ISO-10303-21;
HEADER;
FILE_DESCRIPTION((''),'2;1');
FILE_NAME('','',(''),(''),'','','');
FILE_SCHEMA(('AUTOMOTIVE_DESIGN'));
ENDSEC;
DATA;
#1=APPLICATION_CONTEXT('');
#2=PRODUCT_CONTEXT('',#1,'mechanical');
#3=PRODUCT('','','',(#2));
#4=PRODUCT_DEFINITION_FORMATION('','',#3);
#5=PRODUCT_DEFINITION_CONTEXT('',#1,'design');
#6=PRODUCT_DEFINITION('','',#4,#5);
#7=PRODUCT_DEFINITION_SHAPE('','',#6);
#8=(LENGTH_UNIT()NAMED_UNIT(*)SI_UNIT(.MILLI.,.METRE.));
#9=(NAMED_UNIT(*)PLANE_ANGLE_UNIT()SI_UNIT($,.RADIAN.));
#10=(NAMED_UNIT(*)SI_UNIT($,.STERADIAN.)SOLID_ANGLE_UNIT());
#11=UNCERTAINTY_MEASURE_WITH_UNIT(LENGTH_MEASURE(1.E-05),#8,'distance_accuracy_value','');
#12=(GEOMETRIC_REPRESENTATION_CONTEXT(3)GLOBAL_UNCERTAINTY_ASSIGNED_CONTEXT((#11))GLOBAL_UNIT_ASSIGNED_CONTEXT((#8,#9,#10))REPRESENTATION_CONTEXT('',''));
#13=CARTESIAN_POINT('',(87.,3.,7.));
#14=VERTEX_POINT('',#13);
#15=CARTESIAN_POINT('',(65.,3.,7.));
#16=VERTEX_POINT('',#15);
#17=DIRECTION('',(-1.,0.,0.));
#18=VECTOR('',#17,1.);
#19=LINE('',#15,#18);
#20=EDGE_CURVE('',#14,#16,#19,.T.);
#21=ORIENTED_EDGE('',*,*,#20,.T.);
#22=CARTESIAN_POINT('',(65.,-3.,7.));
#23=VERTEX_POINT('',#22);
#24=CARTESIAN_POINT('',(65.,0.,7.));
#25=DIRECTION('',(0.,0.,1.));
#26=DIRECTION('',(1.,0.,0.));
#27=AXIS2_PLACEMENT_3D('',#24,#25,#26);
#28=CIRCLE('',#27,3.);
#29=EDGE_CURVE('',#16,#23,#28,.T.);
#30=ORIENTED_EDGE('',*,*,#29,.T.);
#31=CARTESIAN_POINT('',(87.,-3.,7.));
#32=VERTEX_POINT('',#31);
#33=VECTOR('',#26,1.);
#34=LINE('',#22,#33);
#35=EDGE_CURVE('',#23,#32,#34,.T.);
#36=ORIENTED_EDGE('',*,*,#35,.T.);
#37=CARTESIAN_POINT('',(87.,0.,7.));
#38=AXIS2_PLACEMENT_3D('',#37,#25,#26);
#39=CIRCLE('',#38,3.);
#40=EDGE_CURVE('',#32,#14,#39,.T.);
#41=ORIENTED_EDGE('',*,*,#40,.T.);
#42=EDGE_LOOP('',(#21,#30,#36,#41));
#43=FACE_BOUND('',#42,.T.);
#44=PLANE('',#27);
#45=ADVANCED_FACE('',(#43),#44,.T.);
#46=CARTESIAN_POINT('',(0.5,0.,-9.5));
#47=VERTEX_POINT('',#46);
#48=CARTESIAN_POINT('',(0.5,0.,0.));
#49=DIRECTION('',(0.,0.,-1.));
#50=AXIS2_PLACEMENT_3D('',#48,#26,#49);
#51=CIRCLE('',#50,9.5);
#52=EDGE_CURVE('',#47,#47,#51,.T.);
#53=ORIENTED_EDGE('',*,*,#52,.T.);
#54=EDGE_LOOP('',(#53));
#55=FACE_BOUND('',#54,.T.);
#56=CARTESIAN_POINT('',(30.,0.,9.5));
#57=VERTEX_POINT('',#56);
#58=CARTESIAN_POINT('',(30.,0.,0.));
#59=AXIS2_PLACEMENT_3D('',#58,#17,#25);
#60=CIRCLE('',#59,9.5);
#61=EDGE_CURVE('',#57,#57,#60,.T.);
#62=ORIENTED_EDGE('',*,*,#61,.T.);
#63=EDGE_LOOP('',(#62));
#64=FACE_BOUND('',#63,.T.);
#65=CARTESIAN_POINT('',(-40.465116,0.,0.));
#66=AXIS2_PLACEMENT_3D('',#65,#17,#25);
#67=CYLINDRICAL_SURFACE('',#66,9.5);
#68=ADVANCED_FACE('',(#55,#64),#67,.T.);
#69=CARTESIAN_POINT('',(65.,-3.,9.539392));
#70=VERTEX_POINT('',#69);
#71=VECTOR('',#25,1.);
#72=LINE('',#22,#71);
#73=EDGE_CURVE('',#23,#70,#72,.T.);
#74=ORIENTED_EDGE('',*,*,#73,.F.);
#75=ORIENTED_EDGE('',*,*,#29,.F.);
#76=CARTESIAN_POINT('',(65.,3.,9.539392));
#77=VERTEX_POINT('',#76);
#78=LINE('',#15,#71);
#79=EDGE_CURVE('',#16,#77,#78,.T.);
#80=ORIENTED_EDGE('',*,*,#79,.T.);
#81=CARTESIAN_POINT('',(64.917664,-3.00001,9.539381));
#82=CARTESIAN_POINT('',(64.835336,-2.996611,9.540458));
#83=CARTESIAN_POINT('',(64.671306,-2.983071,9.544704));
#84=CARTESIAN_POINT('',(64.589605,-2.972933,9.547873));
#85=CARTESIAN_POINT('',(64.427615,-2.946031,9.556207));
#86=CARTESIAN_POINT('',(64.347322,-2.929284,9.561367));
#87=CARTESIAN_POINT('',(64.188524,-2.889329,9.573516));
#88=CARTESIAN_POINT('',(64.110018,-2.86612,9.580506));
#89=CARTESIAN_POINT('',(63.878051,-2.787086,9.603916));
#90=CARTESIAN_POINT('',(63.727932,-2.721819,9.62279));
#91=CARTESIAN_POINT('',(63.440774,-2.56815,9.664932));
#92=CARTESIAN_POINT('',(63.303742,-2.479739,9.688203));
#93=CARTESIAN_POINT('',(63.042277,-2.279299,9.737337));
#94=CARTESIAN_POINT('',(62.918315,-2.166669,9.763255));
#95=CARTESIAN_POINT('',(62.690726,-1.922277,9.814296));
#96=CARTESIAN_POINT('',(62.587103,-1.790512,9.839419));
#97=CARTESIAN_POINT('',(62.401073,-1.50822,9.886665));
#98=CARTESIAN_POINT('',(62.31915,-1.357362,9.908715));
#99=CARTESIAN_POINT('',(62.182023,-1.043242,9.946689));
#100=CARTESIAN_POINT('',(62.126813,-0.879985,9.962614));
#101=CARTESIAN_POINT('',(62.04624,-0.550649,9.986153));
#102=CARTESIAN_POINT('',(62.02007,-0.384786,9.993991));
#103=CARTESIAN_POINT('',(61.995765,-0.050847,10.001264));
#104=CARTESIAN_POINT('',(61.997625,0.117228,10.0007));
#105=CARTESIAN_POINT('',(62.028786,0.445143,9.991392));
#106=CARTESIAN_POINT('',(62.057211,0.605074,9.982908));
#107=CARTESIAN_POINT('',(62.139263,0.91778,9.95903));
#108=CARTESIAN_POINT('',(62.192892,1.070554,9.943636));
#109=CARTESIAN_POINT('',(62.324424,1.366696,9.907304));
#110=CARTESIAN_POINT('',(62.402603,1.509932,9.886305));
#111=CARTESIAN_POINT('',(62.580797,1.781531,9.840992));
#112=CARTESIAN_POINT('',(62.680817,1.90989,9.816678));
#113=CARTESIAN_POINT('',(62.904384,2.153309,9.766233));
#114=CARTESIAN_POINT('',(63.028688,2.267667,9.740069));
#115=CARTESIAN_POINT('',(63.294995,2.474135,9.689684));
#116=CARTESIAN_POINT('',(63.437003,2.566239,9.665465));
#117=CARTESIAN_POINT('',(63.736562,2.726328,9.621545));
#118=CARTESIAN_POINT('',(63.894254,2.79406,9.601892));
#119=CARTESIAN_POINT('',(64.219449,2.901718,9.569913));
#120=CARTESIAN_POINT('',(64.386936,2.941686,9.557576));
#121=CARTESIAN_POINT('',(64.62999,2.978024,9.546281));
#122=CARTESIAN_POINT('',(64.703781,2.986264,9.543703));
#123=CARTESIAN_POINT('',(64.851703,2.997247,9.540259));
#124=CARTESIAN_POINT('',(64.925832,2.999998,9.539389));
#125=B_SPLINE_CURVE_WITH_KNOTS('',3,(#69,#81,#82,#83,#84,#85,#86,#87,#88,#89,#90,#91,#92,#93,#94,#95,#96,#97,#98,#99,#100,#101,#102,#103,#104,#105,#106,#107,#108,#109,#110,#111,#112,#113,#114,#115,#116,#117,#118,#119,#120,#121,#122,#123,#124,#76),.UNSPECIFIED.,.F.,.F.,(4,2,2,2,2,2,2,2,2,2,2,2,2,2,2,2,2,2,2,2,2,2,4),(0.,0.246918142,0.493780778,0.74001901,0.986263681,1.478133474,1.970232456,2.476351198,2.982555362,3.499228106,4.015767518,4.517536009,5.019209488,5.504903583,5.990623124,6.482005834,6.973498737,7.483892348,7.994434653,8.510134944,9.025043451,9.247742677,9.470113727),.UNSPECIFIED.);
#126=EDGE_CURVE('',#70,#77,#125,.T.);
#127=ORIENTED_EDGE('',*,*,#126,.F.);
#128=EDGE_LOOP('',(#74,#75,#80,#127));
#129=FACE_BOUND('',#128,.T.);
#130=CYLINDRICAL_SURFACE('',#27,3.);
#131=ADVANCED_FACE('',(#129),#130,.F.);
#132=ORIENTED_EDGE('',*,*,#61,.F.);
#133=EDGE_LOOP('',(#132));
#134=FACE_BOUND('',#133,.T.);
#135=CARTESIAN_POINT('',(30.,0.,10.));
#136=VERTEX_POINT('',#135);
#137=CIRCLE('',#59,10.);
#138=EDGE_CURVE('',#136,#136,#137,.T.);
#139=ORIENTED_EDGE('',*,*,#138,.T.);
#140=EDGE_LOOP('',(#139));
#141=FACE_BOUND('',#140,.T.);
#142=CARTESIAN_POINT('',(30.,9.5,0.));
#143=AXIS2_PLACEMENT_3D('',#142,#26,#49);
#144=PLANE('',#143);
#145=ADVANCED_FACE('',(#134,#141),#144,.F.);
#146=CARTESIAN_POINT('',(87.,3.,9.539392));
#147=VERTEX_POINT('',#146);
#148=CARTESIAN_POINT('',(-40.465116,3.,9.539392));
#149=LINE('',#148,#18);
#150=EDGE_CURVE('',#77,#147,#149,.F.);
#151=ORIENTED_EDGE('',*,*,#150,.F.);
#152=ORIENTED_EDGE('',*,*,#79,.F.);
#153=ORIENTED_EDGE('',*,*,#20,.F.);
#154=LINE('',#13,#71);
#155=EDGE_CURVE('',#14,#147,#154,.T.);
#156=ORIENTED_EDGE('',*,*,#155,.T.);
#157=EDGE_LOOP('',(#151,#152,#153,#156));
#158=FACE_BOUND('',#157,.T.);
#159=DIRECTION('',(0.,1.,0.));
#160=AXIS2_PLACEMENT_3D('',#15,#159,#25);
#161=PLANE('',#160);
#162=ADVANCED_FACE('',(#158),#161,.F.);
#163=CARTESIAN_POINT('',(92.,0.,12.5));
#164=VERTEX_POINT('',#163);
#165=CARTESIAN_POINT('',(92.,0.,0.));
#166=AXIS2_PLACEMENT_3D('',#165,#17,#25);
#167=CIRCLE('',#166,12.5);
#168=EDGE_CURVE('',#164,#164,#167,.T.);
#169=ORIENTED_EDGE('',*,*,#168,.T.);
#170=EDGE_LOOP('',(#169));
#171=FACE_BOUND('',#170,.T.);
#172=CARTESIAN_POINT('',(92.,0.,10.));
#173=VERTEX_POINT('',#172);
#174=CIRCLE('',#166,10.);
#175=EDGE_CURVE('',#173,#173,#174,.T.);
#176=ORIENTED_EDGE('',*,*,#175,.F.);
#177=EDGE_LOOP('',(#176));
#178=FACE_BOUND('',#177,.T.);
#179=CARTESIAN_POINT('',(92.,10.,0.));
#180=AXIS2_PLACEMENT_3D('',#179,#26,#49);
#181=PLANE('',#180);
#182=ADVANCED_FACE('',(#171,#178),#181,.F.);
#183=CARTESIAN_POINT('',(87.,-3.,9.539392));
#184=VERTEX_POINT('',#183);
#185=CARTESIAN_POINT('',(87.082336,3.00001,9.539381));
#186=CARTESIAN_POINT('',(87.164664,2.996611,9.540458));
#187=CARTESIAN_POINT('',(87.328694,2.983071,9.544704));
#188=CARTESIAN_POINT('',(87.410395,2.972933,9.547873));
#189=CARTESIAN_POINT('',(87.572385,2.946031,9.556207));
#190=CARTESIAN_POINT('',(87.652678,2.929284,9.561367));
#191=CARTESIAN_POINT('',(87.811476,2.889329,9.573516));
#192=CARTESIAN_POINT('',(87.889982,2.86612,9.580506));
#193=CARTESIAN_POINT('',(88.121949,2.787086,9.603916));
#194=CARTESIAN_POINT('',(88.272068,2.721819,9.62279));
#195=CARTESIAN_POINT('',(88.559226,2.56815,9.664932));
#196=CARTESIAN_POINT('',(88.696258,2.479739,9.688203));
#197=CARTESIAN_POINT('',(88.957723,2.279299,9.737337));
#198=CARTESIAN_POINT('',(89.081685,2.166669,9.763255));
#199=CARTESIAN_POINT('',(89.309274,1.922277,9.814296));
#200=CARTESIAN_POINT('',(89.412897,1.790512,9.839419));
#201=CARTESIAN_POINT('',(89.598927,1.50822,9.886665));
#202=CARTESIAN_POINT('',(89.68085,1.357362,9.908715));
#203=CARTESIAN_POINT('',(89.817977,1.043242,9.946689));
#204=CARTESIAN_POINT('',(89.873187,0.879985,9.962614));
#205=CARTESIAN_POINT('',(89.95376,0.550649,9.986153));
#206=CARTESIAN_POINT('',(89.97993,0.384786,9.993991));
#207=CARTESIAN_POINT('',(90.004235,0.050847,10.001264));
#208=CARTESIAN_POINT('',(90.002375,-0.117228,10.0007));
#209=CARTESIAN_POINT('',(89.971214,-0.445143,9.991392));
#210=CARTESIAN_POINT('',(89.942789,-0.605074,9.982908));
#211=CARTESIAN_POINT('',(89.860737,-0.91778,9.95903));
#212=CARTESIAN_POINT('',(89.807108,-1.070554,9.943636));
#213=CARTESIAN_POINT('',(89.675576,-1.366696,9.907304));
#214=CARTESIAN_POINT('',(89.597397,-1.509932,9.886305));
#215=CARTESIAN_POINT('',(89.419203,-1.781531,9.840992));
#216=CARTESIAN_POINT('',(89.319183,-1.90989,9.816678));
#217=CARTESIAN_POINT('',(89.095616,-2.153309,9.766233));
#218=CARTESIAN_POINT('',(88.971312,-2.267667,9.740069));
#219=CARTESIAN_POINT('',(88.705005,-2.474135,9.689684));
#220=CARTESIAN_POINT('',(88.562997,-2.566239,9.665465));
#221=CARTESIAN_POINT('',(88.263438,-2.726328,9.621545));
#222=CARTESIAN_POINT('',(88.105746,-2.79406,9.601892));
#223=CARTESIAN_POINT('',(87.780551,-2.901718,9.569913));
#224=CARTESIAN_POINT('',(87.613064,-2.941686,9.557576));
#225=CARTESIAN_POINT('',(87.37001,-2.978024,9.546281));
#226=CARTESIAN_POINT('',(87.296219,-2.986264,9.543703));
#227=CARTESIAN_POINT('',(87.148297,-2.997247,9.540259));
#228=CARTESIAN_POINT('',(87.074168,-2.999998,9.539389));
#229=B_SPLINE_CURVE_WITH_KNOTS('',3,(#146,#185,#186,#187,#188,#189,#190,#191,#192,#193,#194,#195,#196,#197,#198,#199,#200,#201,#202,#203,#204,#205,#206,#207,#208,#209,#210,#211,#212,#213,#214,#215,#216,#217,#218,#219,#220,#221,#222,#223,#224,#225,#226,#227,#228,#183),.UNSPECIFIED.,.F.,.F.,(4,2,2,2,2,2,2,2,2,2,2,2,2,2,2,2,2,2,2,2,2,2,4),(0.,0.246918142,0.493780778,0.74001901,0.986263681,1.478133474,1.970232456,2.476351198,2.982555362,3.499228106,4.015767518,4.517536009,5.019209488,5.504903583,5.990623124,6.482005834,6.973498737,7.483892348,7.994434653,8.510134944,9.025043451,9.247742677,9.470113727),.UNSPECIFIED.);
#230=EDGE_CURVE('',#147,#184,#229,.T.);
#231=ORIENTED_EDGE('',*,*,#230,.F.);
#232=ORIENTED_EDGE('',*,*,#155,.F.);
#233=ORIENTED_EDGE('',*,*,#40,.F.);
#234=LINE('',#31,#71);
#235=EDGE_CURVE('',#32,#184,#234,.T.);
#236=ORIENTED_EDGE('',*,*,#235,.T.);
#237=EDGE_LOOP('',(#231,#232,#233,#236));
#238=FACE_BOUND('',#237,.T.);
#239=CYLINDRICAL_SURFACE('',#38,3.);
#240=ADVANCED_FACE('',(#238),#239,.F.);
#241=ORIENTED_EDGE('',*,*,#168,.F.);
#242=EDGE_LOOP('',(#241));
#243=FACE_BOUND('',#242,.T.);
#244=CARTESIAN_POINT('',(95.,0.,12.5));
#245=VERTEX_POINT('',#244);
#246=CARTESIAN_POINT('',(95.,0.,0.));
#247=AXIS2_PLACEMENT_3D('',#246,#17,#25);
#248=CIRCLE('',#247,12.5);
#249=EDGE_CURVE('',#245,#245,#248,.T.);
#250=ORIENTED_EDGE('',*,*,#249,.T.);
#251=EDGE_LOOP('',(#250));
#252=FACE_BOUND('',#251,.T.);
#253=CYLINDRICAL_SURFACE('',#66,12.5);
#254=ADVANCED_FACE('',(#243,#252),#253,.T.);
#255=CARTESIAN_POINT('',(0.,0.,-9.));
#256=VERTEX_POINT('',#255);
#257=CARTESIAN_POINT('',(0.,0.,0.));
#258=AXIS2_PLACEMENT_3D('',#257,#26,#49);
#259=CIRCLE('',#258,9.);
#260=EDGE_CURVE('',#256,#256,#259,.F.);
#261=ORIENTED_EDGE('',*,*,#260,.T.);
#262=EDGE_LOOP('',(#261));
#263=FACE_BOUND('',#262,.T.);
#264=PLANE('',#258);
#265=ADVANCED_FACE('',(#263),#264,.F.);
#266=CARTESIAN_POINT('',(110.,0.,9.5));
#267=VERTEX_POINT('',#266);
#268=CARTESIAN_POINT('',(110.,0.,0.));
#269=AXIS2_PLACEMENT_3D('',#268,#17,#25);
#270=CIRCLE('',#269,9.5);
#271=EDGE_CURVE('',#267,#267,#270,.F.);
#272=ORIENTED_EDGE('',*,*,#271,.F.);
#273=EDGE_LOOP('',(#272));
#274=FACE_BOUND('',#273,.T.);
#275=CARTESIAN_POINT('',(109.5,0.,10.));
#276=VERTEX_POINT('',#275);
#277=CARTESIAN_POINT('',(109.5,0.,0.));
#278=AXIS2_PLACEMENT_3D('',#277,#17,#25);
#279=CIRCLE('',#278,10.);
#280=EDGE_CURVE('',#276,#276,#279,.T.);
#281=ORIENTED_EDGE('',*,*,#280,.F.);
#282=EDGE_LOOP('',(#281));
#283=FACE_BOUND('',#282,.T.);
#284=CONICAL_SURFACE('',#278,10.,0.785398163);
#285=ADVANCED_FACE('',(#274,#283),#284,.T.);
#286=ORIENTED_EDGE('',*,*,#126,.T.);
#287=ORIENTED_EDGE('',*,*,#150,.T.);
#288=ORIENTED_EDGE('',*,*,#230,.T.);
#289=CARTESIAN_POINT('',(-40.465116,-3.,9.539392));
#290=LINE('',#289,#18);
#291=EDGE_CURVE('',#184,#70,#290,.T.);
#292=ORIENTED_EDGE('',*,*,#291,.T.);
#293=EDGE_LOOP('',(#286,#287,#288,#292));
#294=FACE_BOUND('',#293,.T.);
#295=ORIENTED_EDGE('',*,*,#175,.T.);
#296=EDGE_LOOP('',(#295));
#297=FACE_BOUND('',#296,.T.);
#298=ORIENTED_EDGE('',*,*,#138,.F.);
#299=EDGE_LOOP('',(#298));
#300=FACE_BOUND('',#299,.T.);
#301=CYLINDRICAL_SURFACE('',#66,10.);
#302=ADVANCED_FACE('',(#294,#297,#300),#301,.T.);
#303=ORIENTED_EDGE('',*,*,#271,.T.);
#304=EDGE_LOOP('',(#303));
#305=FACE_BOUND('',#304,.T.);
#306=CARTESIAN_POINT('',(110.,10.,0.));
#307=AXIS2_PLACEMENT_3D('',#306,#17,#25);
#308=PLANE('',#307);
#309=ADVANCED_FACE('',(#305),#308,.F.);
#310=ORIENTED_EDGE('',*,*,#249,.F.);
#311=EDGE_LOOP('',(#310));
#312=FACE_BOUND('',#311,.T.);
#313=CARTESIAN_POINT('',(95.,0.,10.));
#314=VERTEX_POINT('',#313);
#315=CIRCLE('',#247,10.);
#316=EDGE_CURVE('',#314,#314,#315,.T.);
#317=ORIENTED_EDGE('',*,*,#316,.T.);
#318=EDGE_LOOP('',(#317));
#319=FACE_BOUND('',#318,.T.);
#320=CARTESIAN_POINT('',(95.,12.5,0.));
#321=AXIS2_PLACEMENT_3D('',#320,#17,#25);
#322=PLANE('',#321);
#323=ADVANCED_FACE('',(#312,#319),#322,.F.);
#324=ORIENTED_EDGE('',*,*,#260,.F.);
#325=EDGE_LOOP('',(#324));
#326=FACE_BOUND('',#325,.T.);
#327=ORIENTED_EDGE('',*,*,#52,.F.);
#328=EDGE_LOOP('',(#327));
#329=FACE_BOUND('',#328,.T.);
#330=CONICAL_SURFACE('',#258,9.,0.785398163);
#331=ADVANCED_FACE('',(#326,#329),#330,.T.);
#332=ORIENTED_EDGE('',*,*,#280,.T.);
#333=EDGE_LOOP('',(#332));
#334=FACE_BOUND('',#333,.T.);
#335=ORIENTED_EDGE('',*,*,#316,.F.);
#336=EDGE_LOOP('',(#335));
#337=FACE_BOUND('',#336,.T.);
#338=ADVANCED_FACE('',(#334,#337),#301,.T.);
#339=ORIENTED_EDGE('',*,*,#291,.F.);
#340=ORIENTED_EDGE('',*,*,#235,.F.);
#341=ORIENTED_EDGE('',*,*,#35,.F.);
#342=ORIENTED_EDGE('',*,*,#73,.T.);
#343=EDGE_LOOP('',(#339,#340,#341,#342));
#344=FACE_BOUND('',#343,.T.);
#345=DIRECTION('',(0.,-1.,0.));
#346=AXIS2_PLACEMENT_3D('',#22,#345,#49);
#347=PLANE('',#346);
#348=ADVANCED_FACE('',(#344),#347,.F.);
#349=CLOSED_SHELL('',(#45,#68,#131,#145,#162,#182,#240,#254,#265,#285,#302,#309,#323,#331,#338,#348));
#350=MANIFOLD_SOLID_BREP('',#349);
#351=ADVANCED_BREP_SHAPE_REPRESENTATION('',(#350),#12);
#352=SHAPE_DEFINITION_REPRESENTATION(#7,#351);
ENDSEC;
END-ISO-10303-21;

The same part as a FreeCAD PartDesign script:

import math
import FreeCAD as App
import Part
import Sketcher

V = App.Vector


def edges_at(feature, points):
    """Names of the edges that pass closest to the given points."""
    edges = feature.Shape.Edges
    near = lambda p: min(range(len(edges)), key=lambda i: edges[i].distToShape(Part.Vertex(*p))[0])
    return sorted({f"Edge{near(p) + 1}" for p in points})


def add_polygon(sketch, points):
    """Adds a closed chain of lines whose ends are joined by coincident constraints."""
    first, n = sketch.GeometryCount, len(points)
    for a, b in zip(points, points[1:] + points[:1]):
        sketch.addGeometry(Part.LineSegment(App.Vector(*a, 0), App.Vector(*b, 0)), False)
    for i in range(n):
        sketch.addConstraint(Sketcher.Constraint("Coincident", first + i, 2, first + (i + 1) % n, 1))

doc = App.newDocument("Part")
body = doc.addObject("PartDesign::Body", "Body")

sketch1 = body.newObject("Sketcher::SketchObject", "Sketch")
sketch1.AttachmentSupport = (doc.getObject("XY_Plane"), [""])
sketch1.MapMode = "FlatFace"
add_polygon(sketch1, [(0, 9.5), (0, 0), (110, 0), (110, 10), (95, 10), (95, 12.5), (92, 12.5), (92, 10), (30, 10), (30, 9.5)])
sketch1.addConstraint([
    Sketcher.Constraint("Vertical", 0),
    Sketcher.Constraint("Horizontal", 1),
    Sketcher.Constraint("Vertical", 2),
    Sketcher.Constraint("Horizontal", 3),
    Sketcher.Constraint("Vertical", 4),
    Sketcher.Constraint("Horizontal", 5),
    Sketcher.Constraint("Vertical", 6),
    Sketcher.Constraint("Horizontal", 7),
    Sketcher.Constraint("Vertical", 8),
    Sketcher.Constraint("Horizontal", 9),
    Sketcher.Constraint("Coincident", 0, 2, -1, 1),
    Sketcher.Constraint("Horizontal", 3, 2, 6, 2),
    Sketcher.Constraint("DistanceX", 1, 1, 1, 2, 110.0),
    Sketcher.Constraint("DistanceX", 3, 2, 3, 1, 15.0),
    Sketcher.Constraint("DistanceX", 5, 2, 5, 1, 3.0),
    Sketcher.Constraint("DistanceX", 7, 2, 7, 1, 62.0),
    Sketcher.Constraint("DistanceY", 2, 1, 2, 2, 10.0),
    Sketcher.Constraint("DistanceY", 0, 2, 0, 1, 9.5),
    Sketcher.Constraint("DistanceY", 4, 1, 4, 2, 2.5),
])
revolution = body.newObject("PartDesign::Revolution", "Revolution")
revolution.Profile = sketch1
revolution.ReferenceAxis = (sketch1, ["H_Axis"])
revolution.Angle = 360

sketch2 = body.newObject("Sketcher::SketchObject", "Sketch001")
sketch2.AttachmentSupport = (doc.getObject("XY_Plane"), [""])
sketch2.MapMode = "FlatFace"
sketch2.AttachmentOffset = App.Placement(V(0, 0, 10), App.Rotation())
sketch2.addGeometry([
    Part.LineSegment(V(87, 3, 0), V(65, 3, 0)),
    Part.ArcOfCircle(Part.Circle(V(65, 0, 0), V(0, 0, 1), 3), math.radians(90), math.radians(270)),
    Part.LineSegment(V(65, -3, 0), V(87, -3, 0)),
    Part.ArcOfCircle(Part.Circle(V(87, 0, 0), V(0, 0, 1), 3), math.radians(-90), math.radians(90)),
], False)
sketch2.addConstraint([
    Sketcher.Constraint("Tangent", 0, 2, 1, 1),
    Sketcher.Constraint("Tangent", 1, 2, 2, 1),
    Sketcher.Constraint("Tangent", 2, 2, 3, 1),
    Sketcher.Constraint("Tangent", 3, 2, 0, 1),
    Sketcher.Constraint("Horizontal", 0),
    Sketcher.Constraint("Horizontal", 2),
    Sketcher.Constraint("PointOnObject", 1, 3, -1),
    Sketcher.Constraint("Radius", 1, 3.0),
    Sketcher.Constraint("DistanceX", 0, 2, 0, 1, 22.0),
    Sketcher.Constraint("DistanceX", -1, 1, 1, 3, 65.0),
])
pocket1 = body.newObject("PartDesign::Pocket", "Pocket")
pocket1.Profile = sketch2
pocket1.Length = 3
doc.recompute()

chamfer = body.newObject("PartDesign::Chamfer", "Chamfer")
chamfer.Base = (pocket1, edges_at(pocket1, [(0, -9.5, 0)]))
chamfer.Size = 0.5
doc.recompute()

chamfer2 = body.newObject("PartDesign::Chamfer", "Chamfer001")
chamfer2.Base = (chamfer, edges_at(chamfer, [(110, -10, 0)]))
chamfer2.Size = 0.5

doc.recompute()
